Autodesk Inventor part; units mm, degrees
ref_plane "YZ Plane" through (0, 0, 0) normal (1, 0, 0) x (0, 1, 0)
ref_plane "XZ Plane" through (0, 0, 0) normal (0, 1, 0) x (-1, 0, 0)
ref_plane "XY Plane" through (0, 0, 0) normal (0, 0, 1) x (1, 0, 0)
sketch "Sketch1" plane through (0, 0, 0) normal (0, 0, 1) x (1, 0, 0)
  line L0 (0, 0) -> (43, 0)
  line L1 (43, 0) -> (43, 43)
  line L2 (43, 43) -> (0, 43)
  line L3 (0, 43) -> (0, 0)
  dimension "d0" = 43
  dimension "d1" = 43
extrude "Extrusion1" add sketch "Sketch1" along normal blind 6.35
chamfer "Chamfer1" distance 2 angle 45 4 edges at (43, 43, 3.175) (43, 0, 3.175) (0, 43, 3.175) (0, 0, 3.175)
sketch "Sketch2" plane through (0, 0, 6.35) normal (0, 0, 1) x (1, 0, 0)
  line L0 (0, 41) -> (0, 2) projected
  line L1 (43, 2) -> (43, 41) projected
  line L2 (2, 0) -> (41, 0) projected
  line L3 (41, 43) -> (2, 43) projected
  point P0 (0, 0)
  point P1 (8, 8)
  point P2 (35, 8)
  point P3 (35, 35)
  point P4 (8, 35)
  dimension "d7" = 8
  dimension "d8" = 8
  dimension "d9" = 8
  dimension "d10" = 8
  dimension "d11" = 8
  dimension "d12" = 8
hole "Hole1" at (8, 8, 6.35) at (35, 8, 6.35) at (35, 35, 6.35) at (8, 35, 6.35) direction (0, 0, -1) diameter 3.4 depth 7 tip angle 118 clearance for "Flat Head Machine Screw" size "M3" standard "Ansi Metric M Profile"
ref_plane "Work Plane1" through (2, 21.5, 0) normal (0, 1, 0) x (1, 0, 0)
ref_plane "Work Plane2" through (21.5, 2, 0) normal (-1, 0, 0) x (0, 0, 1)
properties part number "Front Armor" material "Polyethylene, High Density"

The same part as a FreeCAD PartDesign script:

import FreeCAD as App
import Part
import Sketcher

V = App.Vector


def edges_at(feature, points):
    """Names of the edges that pass closest to the given points."""
    edges = feature.Shape.Edges
    near = lambda p: min(range(len(edges)), key=lambda i: edges[i].distToShape(Part.Vertex(*p))[0])
    return sorted({f"Edge{near(p) + 1}" for p in points})

doc = App.newDocument("Part")
body = doc.addObject("PartDesign::Body", "Body")

# Sketch on XY plane
sketch1 = body.newObject("Sketcher::SketchObject", "Sketch")
sketch1.AttachmentSupport = (doc.getObject("XY_Plane"), [""])
sketch1.MapMode = "FlatFace"
sketch1.addGeometry([
    Part.LineSegment(V(0, 43, 0), V(0, 0, 0)),
    Part.LineSegment(V(0, 0, 0), V(43, 0, 0)),
    Part.LineSegment(V(43, 0, 0), V(43, 43, 0)),
    Part.LineSegment(V(43, 43, 0), V(0, 43, 0)),
], False)
sketch1.addConstraint([
    Sketcher.Constraint("Coincident", 0, 2, 1, 1),
    Sketcher.Constraint("Coincident", 1, 2, 2, 1),
    Sketcher.Constraint("Coincident", 2, 2, 3, 1),
    Sketcher.Constraint("Coincident", 3, 2, 0, 1),
    Sketcher.Constraint("Vertical", 0),
    Sketcher.Constraint("Horizontal", 1),
    Sketcher.Constraint("Vertical", 2),
    Sketcher.Constraint("Horizontal", 3),
    Sketcher.Constraint("Coincident", 0, 2, -1, 1),
    Sketcher.Constraint("Equal", 3, 0),
    Sketcher.Constraint("DistanceX", 1, 1, 1, 2, 43.0),
])
pad1 = body.newObject("PartDesign::Pad", "Pad")
pad1.Profile = sketch1
pad1.Length = 6.35
doc.recompute()

chamfer = body.newObject("PartDesign::Chamfer", "Chamfer")
chamfer.Base = (pad1, edges_at(pad1, [
    (43, 43, 3.175),
    (43, 0, 3.175),
    (0, 43, 3.175),
    (0, 0, 3.175),
]))
chamfer.Size = 2

# Sketch on XY plane
sketch2 = body.newObject("Sketcher::SketchObject", "Sketch001")
sketch2.AttachmentSupport = (doc.getObject("XY_Plane"), [""])
sketch2.MapMode = "FlatFace"
sketch2.AttachmentOffset = App.Placement(V(0, 0, 6.35), App.Rotation())
sketch2.addGeometry([
    Part.Circle(V(8, 8, 0), V(0, 0, 1), 1.7),
    Part.Circle(V(35, 8, 0), V(0, 0, 1), 1.7),
    Part.Circle(V(35, 35, 0), V(0, 0, 1), 1.7),
    Part.Circle(V(8, 35, 0), V(0, 0, 1), 1.7),
], False)
sketch2.addConstraint([
    Sketcher.Constraint("Equal", 0, 1),
    Sketcher.Constraint("Equal", 1, 2),
    Sketcher.Constraint("Equal", 2, 3),
    Sketcher.Constraint("Horizontal", 0, 3, 1, 3),
    Sketcher.Constraint("Horizontal", 2, 3, 3, 3),
    Sketcher.Constraint("Vertical", 1, 3, 2, 3),
    Sketcher.Constraint("Vertical", 0, 3, 3, 3),
    Sketcher.Constraint("Diameter", 0, 3.4),
    Sketcher.Constraint("DistanceX", -1, 1, 0, 3, 8.0),
    Sketcher.Constraint("DistanceY", -1, 1, 0, 3, 8.0),
    Sketcher.Constraint("DistanceX", -1, 1, 1, 3, 35.0),
    Sketcher.Constraint("DistanceY", -1, 1, 2, 3, 35.0),
])
doc.recompute()
hole = body.newObject("PartDesign::Hole", "Hole")
hole.Profile = sketch2
hole.ThreadType = "None"
hole.Diameter = 3.4
hole.DepthType = "Dimension"
hole.Depth = 7
hole.DrillPoint = "Angled"
hole.DrillPointAngle = 118

doc.recompute()
